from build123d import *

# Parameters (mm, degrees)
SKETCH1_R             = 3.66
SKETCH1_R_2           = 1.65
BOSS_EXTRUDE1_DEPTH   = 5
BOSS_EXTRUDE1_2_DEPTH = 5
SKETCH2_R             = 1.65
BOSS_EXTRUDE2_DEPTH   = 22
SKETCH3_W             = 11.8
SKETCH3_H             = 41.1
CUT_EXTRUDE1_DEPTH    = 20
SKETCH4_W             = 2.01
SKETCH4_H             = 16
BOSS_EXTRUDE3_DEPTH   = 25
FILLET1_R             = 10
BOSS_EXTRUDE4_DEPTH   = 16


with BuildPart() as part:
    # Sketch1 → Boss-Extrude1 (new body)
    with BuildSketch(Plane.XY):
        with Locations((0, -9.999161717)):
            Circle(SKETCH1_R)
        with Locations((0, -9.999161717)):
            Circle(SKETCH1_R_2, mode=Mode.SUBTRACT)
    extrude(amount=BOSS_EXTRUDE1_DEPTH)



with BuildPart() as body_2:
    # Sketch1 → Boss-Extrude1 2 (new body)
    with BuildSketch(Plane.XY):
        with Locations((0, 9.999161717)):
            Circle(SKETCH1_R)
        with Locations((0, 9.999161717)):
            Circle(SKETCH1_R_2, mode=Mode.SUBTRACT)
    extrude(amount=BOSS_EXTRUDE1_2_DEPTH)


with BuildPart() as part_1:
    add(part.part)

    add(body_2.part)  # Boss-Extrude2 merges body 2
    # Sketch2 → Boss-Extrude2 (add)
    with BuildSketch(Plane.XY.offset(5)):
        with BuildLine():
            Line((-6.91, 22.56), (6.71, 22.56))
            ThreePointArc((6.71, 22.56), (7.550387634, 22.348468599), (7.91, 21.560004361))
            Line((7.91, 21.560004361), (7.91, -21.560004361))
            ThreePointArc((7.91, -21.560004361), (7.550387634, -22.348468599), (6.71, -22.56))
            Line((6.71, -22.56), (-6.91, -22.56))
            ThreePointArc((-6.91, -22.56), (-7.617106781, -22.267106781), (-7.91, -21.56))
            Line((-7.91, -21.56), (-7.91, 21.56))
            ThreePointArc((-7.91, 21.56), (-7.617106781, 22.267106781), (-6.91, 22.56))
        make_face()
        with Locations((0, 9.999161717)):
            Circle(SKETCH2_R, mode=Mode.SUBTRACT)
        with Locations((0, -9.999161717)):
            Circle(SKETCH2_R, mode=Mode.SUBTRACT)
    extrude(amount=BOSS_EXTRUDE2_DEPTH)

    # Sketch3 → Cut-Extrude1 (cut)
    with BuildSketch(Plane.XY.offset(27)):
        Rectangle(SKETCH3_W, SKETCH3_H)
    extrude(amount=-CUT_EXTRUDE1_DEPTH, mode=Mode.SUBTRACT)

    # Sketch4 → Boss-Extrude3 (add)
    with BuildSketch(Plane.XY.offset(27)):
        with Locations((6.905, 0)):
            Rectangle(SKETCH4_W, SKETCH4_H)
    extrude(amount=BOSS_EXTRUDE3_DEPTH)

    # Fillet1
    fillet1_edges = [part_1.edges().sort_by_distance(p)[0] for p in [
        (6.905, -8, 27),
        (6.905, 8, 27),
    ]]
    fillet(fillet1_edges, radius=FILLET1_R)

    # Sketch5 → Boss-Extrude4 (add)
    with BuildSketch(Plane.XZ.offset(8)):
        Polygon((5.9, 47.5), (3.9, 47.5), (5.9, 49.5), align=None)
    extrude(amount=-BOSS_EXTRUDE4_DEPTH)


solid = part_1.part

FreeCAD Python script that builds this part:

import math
import FreeCAD as App
import Part
import Sketcher
from FreeCAD import Vector
Q = App.Units.Quantity


def edges_at(feature, points):
    """Names of the edges that pass closest to the given points."""
    edges = feature.Shape.Edges
    near = lambda p: min(range(len(edges)), key=lambda i: edges[i].distToShape(Part.Vertex(*p))[0])
    return sorted({f"Edge{near(p) + 1}" for p in points})


def add_polygon(sketch, points):
    """Adds a closed chain of lines whose ends are joined by coincident constraints."""
    first, n = sketch.GeometryCount, len(points)
    for a, b in zip(points, points[1:] + points[:1]):
        sketch.addGeometry(Part.LineSegment(App.Vector(*a, 0), App.Vector(*b, 0)), False)
    for i in range(n):
        sketch.addConstraint(Sketcher.Constraint("Coincident", first + i, 2, first + (i + 1) % n, 1))

doc = App.newDocument("Part")
body = doc.addObject("PartDesign::Body", "Body")

# Sketch on XY plane
sketch1 = body.newObject("Sketcher::SketchObject", "Sketch")
sketch1.AttachmentSupport = (doc.getObject("XY_Plane"), [""])
sketch1.MapMode = "FlatFace"
sketch1.addGeometry([
    Part.Circle(Vector(0, -10, 0), Vector(0, 0, 1), 3.7),
    Part.Circle(Vector(0, -10, 0), Vector(0, 0, 1), 1.6),
], False)
sketch1.addConstraint([
    Sketcher.Constraint("Coincident", 1, 3, 0, 3),
    Sketcher.Constraint("PointOnObject", 0, 3, -2),
    Sketcher.Constraint("Diameter", 1, Q("3.3 mm")),
    Sketcher.Constraint("Diameter", 0, Q("7.32 mm")),
    Sketcher.Constraint("DistanceY", 0, 3, -1, 1, Q("9.999162 mm")),
])
pad1 = body.newObject("PartDesign::Pad", "Pad")
pad1.Profile = sketch1
pad1.Length = 5
body2 = doc.addObject("PartDesign::Body", "Body001")

# Sketch on XY plane
sketch2 = body2.newObject("Sketcher::SketchObject", "Sketch001")
sketch2.AttachmentSupport = (doc.getObject("XY_Plane001"), [""])
sketch2.MapMode = "FlatFace"
sketch2.addGeometry([
    Part.Circle(Vector(0, 10, 0), Vector(0, 0, 1), 3.7),
    Part.Circle(Vector(0, 10, 0), Vector(0, 0, 1), 1.6),
], False)
sketch2.addConstraint([
    Sketcher.Constraint("Coincident", 1, 3, 0, 3),
    Sketcher.Constraint("PointOnObject", 0, 3, -2),
    Sketcher.Constraint("Diameter", 1, Q("3.3 mm")),
    Sketcher.Constraint("Diameter", 0, Q("7.32 mm")),
    Sketcher.Constraint("DistanceY", -1, 1, 0, 3, Q("9.999162 mm")),
])
pad2 = body2.newObject("PartDesign::Pad", "Pad001")
pad2.Profile = sketch2
pad2.Length = 5
body.AllowCompound = True
doc.recompute()

boolean = body.newObject("PartDesign::Boolean", "Boolean")
boolean.Type = "Fuse"
boolean.addObjects([body2])

# Sketch on XY plane
sketch3 = body.newObject("Sketcher::SketchObject", "Sketch002")
sketch3.AttachmentSupport = (doc.getObject("XY_Plane"), [""])
sketch3.MapMode = "FlatFace"
sketch3.AttachmentOffset = App.Placement(Vector(0, 0, 5), App.Rotation())
sketch3.addGeometry([
    Part.LineSegment(Vector(6.7, 22.6, 0), Vector(-6.9, 22.6, 0)),  # 0
    Part.ArcOfCircle(Part.Circle(Vector(-6.9, 21.6, 0), Vector(0, 0, 1), 1), math.radians(90), math.radians(180)),  # 1
    Part.LineSegment(Vector(-7.9, 21.6, 0), Vector(-7.9, -21.6, 0)),  # 2
    Part.ArcOfCircle(Part.Circle(Vector(-6.9, -21.6, 0), Vector(0, 0, 1), 1), math.radians(-180), math.radians(-90)),  # 3
    Part.LineSegment(Vector(-6.9, -22.6, 0), Vector(6.7, -22.6, 0)),  # 4
    Part.ArcOfCircle(Part.Circle(Vector(6.9, -21.6, 0), Vector(0, 0, 1), 1), math.radians(-102), math.radians(1)),  # 5
    Part.LineSegment(Vector(7.9, -21.6, 0), Vector(7.9, 21.6, 0)),  # 6
    Part.ArcOfCircle(Part.Circle(Vector(6.9, 21.6, 0), Vector(0, 0, 1), 1), math.radians(-1), math.radians(102)),  # 7
    Part.Circle(Vector(0, -10, 0), Vector(0, 0, 1), 1.6),  # 8
    Part.Circle(Vector(0, 10, 0), Vector(0, 0, 1), 1.6),  # 9
], False)
sketch3.addConstraint([
    Sketcher.Constraint("Tangent", 0, 2, 1, 1),
    Sketcher.Constraint("Tangent", 1, 2, 2, 1),
    Sketcher.Constraint("Tangent", 2, 2, 3, 1),
    Sketcher.Constraint("Tangent", 3, 2, 4, 1),
    Sketcher.Constraint("Coincident", 4, 2, 5, 1),
    Sketcher.Constraint("Coincident", 5, 2, 6, 1),
    Sketcher.Constraint("Coincident", 6, 2, 7, 1),
    Sketcher.Constraint("Coincident", 7, 2, 0, 1),
    Sketcher.Constraint("Horizontal", 0),
    Sketcher.Constraint("Vertical", 2),
    Sketcher.Constraint("Horizontal", 4),
    Sketcher.Constraint("Vertical", 6),
    Sketcher.Constraint("Equal", 1, 3),
    Sketcher.Constraint("Equal", 3, 5),
    Sketcher.Constraint("Equal", 5, 7),
    Sketcher.Constraint("Equal", 8, 9),
    Sketcher.Constraint("Symmetric", 8, 3, 9, 3, -1, 1),
    Sketcher.Constraint("Symmetric", 1, 2, 5, 2, -1, 1),
    Sketcher.Constraint("Symmetric", 5, 3, 7, 3, -1),
    Sketcher.Constraint("PointOnObject", 8, 3, -2),
    Sketcher.Constraint("Vertical", 4, 2, 7, 2),
    Sketcher.Constraint("Radius", 1, Q("1 mm")),
    Sketcher.Constraint("Diameter", 8, Q("3.3 mm")),
    Sketcher.Constraint("DistanceX", 0, 2, 0, 1, Q("13.62 mm")),
    Sketcher.Constraint("DistanceY", 2, 2, 2, 1, Q("43.12 mm")),
    Sketcher.Constraint("DistanceX", 4, 2, 5, 2, Q("1.2 mm")),
    Sketcher.Constraint("DistanceY", 8, 3, -1, 1, Q("9.999162 mm")),
])
pad3 = body.newObject("PartDesign::Pad", "Pad002")
pad3.Profile = sketch3
pad3.Length = 22

# Sketch on XY plane
sketch4 = body.newObject("Sketcher::SketchObject", "Sketch003")
sketch4.AttachmentSupport = (doc.getObject("XY_Plane"), [""])
sketch4.MapMode = "FlatFace"
sketch4.AttachmentOffset = App.Placement(Vector(0, 0, 27), App.Rotation())
add_polygon(sketch4, [(-6, 21), (-6, -21), (6, -21), (6, 21)])  # lines 0-3
sketch4.addConstraint([
    Sketcher.Constraint("Vertical", 0),
    Sketcher.Constraint("Horizontal", 1),
    Sketcher.Constraint("Vertical", 2),
    Sketcher.Constraint("Horizontal", 3),
    Sketcher.Constraint("Symmetric", 0, 2, 2, 2, -1, 1),
    Sketcher.Constraint("DistanceX", 1, 1, 1, 2, Q("11.8 mm")),
    Sketcher.Constraint("DistanceY", 0, 2, 0, 1, Q("41.1 mm")),
])
pocket1 = body.newObject("PartDesign::Pocket", "Pocket")
pocket1.Profile = sketch4
pocket1.Length = 20

# Sketch on XY plane
sketch5 = body.newObject("Sketcher::SketchObject", "Sketch004")
sketch5.AttachmentSupport = (doc.getObject("XY_Plane"), [""])
sketch5.MapMode = "FlatFace"
sketch5.AttachmentOffset = App.Placement(Vector(0, 0, 27), App.Rotation())
add_polygon(sketch5, [(5.9, 8), (5.9, -8), (7.9, -8), (7.9, 8)])  # lines 0-3
sketch5.addConstraint([
    Sketcher.Constraint("Vertical", 0),
    Sketcher.Constraint("Horizontal", 1),
    Sketcher.Constraint("Vertical", 2),
    Sketcher.Constraint("Horizontal", 3),
    Sketcher.Constraint("DistanceY", 0, 2, 0, 1, Q("16 mm")),
    Sketcher.Constraint("DistanceY", 0, 2, -1, 1, Q("8 mm")),
    Sketcher.Constraint("DistanceX", 1, 1, 1, 2, Q("2.01 mm")),
    Sketcher.Constraint("DistanceX", -1, 1, 0, 2, Q("5.9 mm")),
])
pad4 = body.newObject("PartDesign::Pad", "Pad003")
pad4.Profile = sketch5
pad4.Length = 25
doc.recompute()

fillet = body.newObject("PartDesign::Fillet", "Fillet")
fillet.Base = (pad4, edges_at(pad4, [(6.905, -8, 27), (6.905, 8, 27)]))
fillet.Radius = 10

# Sketch on XZ plane
sketch6 = body.newObject("Sketcher::SketchObject", "Sketch005")
sketch6.AttachmentSupport = (doc.getObject("XZ_Plane"), [""])
sketch6.MapMode = "FlatFace"
sketch6.AttachmentOffset = App.Placement(Vector(0, 0, 8), App.Rotation())
add_polygon(sketch6, [(3.9, 47.5), (5.9, 47.5), (5.9, 49.5)])  # lines 0-2
sketch6.addConstraint([
    Sketcher.Constraint("Horizontal", 0),
    Sketcher.Constraint("Vertical", 1),
    Sketcher.Constraint("Equal", 0, 1),
    Sketcher.Constraint("DistanceX", 0, 1, 0, 2, Q("2 mm")),
    Sketcher.Constraint("DistanceX", -1, 1, 0, 2, Q("5.9 mm")),
    Sketcher.Constraint("DistanceY", -1, 1, 0, 2, Q("47.5 mm")),
])
pad5 = body.newObject("PartDesign::Pad", "Pad004")
pad5.Profile = sketch6
pad5.Length = 16
pad5.Reversed = True

doc.recompute()
